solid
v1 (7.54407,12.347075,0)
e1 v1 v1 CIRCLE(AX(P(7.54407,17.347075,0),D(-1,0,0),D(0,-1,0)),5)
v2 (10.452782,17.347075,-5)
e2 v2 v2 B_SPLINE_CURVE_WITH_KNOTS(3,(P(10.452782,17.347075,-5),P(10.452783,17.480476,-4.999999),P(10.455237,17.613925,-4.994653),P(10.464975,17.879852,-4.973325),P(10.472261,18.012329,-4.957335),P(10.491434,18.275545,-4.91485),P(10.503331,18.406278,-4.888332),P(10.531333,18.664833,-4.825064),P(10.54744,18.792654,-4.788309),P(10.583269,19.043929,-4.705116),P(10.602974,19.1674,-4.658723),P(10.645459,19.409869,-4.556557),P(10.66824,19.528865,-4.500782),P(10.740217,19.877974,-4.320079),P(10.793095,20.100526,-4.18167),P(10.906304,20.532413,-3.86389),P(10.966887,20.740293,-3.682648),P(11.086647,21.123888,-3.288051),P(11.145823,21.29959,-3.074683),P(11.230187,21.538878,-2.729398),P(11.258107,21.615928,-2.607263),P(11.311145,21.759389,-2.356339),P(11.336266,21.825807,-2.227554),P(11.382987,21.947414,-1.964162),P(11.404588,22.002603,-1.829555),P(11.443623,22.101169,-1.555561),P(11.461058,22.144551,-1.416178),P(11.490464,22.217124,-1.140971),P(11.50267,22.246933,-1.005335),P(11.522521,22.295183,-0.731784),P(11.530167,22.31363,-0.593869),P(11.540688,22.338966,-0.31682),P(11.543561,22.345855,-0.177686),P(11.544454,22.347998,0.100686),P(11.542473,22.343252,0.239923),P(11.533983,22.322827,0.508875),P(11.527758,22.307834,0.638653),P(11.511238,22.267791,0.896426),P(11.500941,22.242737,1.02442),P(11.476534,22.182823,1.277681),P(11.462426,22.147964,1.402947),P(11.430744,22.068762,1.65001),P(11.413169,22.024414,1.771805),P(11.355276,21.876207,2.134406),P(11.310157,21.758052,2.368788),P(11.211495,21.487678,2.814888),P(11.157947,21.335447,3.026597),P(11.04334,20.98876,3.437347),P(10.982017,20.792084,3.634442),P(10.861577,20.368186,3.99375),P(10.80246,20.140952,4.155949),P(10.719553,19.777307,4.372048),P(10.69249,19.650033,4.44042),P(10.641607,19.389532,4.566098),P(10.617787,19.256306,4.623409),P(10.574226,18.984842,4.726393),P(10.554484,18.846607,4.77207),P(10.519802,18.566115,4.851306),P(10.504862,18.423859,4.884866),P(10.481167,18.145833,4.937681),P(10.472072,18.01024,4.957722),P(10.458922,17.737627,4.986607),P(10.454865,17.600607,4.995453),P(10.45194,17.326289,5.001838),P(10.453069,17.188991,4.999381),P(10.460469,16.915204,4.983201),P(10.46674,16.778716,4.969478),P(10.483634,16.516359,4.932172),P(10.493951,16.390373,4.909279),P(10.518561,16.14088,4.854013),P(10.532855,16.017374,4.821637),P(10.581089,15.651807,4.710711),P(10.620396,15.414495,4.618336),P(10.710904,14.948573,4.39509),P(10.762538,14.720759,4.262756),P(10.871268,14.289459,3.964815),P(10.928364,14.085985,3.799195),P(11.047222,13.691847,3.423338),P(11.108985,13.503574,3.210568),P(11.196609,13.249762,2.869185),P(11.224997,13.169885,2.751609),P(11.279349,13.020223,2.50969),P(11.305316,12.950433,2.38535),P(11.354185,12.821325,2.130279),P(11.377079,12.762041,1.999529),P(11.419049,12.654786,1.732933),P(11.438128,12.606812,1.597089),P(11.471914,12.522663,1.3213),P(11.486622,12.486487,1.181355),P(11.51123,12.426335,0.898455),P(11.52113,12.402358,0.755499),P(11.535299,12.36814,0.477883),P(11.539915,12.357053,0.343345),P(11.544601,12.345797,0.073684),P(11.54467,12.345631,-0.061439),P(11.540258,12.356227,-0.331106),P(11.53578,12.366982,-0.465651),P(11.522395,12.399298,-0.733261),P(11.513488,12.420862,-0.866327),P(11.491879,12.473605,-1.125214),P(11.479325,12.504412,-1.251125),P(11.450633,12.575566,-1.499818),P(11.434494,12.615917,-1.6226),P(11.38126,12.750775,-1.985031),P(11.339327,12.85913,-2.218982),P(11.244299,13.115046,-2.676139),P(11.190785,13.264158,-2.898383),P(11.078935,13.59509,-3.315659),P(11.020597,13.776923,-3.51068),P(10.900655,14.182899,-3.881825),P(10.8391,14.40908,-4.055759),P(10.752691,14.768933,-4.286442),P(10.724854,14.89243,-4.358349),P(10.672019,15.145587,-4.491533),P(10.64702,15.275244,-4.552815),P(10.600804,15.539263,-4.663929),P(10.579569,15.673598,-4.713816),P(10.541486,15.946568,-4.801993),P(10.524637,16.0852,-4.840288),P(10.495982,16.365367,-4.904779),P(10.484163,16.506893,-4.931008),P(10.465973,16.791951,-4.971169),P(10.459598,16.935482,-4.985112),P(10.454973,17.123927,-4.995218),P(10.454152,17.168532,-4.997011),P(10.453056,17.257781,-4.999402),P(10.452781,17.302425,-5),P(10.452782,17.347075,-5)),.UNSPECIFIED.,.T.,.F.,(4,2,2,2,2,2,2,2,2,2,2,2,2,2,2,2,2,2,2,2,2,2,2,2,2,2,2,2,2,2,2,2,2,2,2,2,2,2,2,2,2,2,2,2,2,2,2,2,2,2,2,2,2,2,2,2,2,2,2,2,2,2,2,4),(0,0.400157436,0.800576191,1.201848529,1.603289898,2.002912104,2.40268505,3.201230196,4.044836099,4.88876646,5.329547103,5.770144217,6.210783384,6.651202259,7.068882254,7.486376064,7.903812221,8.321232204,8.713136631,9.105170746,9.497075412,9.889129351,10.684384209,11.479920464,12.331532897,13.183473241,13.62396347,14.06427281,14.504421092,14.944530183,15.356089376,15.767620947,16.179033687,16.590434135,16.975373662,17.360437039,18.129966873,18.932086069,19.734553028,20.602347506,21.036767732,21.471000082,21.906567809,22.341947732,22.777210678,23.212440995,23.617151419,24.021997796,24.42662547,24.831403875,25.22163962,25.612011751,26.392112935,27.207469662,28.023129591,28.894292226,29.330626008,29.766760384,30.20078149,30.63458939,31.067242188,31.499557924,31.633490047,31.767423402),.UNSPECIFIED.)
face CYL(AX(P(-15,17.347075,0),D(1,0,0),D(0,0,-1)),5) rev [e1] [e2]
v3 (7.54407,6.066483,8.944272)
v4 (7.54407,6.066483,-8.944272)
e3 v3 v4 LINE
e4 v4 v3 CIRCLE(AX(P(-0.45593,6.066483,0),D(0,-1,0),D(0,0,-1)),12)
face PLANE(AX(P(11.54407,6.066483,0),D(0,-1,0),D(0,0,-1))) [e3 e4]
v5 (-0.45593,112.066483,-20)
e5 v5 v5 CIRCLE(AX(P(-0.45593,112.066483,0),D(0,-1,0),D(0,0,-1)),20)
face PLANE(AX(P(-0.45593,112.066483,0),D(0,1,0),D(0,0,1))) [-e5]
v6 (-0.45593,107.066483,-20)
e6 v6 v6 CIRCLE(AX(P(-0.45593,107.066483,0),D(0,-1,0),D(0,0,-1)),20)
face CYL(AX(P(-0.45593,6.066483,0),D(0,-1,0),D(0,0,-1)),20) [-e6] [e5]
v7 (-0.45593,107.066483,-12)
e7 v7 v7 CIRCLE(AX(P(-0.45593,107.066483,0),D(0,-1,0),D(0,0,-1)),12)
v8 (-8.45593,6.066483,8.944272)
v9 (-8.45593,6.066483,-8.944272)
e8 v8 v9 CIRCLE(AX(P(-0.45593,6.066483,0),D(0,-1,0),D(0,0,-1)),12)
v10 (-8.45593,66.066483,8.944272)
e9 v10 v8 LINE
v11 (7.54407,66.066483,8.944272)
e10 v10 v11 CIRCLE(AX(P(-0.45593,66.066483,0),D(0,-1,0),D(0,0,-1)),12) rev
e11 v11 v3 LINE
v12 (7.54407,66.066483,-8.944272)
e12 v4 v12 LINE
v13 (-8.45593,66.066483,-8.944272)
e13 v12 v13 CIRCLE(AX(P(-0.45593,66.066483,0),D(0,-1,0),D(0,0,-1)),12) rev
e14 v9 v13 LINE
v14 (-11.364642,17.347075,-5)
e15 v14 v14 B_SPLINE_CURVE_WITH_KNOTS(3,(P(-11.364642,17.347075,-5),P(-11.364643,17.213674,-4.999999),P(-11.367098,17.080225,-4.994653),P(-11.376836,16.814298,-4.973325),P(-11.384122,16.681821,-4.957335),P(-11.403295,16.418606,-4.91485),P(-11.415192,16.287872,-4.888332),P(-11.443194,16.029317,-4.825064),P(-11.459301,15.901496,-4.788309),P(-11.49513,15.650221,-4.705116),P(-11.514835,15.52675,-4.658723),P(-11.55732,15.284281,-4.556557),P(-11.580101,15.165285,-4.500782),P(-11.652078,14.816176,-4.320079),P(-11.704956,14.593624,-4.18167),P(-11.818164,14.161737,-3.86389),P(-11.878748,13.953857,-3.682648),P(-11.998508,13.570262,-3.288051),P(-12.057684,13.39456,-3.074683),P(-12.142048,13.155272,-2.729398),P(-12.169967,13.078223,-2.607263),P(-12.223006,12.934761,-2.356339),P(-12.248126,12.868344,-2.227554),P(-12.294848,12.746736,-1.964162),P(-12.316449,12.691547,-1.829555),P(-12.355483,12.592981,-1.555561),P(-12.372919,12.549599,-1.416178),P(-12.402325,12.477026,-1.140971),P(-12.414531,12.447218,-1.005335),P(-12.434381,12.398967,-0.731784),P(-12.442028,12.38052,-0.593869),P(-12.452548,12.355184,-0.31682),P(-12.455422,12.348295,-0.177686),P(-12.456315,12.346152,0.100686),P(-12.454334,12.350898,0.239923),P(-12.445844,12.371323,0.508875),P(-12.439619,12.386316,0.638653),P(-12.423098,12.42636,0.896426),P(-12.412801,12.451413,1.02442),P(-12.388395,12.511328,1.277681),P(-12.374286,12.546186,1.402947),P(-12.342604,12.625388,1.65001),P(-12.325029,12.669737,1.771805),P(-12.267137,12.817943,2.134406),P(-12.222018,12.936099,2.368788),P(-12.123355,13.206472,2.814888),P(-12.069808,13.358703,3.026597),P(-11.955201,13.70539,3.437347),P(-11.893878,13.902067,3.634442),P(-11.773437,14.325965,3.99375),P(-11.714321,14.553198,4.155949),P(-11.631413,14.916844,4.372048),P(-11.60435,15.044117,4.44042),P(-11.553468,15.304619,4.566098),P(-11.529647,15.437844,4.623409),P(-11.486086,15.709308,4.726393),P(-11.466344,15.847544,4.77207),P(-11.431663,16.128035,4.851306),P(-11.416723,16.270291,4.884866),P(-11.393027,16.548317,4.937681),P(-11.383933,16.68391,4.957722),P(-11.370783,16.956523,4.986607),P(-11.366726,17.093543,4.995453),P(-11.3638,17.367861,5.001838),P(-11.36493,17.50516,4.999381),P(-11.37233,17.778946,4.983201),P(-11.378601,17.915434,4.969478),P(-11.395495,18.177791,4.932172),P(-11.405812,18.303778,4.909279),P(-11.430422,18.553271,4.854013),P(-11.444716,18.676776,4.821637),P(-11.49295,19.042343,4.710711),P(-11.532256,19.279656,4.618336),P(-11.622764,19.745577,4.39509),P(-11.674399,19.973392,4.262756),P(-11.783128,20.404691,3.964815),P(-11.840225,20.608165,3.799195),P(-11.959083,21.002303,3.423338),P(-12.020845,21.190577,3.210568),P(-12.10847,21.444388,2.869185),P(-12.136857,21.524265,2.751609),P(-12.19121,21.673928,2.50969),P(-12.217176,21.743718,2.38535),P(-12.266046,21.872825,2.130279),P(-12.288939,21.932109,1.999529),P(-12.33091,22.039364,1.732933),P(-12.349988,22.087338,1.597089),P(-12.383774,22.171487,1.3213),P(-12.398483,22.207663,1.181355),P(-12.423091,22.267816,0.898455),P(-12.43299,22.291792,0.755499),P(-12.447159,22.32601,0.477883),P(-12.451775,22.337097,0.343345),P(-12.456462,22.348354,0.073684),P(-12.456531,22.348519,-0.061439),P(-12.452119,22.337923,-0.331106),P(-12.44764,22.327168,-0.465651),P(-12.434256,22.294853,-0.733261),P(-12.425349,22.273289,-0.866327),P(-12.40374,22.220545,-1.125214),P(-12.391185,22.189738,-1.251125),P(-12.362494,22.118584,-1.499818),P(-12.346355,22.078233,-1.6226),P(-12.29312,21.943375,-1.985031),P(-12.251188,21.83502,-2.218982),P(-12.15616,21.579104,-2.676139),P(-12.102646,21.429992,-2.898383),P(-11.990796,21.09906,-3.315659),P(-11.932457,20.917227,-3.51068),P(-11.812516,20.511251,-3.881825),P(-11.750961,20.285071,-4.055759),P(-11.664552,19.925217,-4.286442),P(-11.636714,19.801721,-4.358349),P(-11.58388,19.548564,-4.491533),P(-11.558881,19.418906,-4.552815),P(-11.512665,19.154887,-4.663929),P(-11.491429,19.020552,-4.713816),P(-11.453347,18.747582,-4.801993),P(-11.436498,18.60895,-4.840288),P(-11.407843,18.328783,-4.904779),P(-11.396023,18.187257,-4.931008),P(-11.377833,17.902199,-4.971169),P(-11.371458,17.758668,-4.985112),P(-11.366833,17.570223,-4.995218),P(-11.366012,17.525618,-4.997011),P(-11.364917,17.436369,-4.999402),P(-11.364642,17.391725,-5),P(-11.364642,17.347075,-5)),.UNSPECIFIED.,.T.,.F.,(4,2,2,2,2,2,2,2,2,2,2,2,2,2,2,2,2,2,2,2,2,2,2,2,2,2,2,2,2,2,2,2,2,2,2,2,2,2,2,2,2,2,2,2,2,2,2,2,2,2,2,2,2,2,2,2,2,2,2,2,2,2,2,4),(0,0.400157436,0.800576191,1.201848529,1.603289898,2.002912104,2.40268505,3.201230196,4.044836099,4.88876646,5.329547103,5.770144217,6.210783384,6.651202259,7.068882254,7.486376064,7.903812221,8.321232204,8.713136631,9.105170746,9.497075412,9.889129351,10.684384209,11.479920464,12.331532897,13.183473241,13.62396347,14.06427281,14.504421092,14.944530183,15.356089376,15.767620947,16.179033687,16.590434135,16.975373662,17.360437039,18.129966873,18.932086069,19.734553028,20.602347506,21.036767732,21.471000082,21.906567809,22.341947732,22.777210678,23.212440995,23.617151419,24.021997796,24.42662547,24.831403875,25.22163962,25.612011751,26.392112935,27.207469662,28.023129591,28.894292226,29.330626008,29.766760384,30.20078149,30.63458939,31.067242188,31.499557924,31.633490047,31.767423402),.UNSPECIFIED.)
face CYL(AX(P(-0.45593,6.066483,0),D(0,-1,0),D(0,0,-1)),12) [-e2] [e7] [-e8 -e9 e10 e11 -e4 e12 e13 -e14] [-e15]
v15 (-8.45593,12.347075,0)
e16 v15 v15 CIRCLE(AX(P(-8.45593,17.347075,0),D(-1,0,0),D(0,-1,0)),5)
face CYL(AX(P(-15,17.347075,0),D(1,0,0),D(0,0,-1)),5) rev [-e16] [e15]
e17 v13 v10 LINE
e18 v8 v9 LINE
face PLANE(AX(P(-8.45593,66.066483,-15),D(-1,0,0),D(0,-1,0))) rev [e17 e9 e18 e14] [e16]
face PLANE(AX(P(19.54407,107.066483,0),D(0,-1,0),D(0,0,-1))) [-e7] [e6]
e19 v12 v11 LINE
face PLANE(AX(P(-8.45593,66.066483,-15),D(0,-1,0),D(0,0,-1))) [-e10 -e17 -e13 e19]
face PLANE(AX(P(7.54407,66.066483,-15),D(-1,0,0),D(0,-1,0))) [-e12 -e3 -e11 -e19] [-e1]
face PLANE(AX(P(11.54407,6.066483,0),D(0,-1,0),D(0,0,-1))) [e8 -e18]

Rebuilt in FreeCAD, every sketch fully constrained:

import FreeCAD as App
import Part
import Sketcher
from FreeCAD import Vector

doc = App.newDocument("Part")
body = doc.addObject("PartDesign::Body", "Body")

sketch1 = body.newObject("Sketcher::SketchObject", "Sketch")
sketch1.AttachmentSupport = (doc.getObject("XY_Plane"), [""])
sketch1.MapMode = "FlatFace"
sketch1.addGeometry([
    Part.LineSegment(Vector(20, 112, 0), Vector(0, 112, 0)),
    Part.LineSegment(Vector(0, 112, 0), Vector(0, 6, 0)),
    Part.LineSegment(Vector(0, 6, 0), Vector(12, 6, 0)),
    Part.LineSegment(Vector(12, 6, 0), Vector(12, 107, 0)),
    Part.LineSegment(Vector(12, 107, 0), Vector(20, 107, 0)),
    Part.LineSegment(Vector(20, 107, 0), Vector(20, 112, 0)),
], False)
sketch1.addGeometry(Part.LineSegment(Vector(0, 6, 0), Vector(0, 112, 0)), True)
sketch1.addConstraint([
    Sketcher.Constraint("Coincident", 0, 2, 1, 1),
    Sketcher.Constraint("Coincident", 1, 2, 2, 1),
    Sketcher.Constraint("Coincident", 2, 2, 3, 1),
    Sketcher.Constraint("Coincident", 3, 2, 4, 1),
    Sketcher.Constraint("Coincident", 4, 2, 5, 1),
    Sketcher.Constraint("Coincident", 5, 2, 0, 1),
    Sketcher.Constraint("Horizontal", 0),
    Sketcher.Constraint("Vertical", 1),
    Sketcher.Constraint("Horizontal", 2),
    Sketcher.Constraint("Vertical", 3),
    Sketcher.Constraint("Horizontal", 4),
    Sketcher.Constraint("Vertical", 5),
    Sketcher.Constraint("Vertical", 6),
    Sketcher.Constraint("Coincident", 6, 1, 1, 2),
    Sketcher.Constraint("Horizontal", 5, 2, 6, 2),
    Sketcher.Constraint("DistanceX", 0, 2, 0, 1, 20.0),
    Sketcher.Constraint("DistanceX", 2, 1, 2, 2, 12.0),
    Sketcher.Constraint("DistanceY", 1, 2, 1, 1, 106.0),
    Sketcher.Constraint("DistanceY", 3, 1, 3, 2, 101.0),
    Sketcher.Constraint("DistanceX", 0, 2, -1, 1, 0.45593),
    Sketcher.Constraint("DistanceY", -1, 1, 0, 2, 112.066483),
])
revolution = body.newObject("PartDesign::Revolution", "Revolution")
revolution.Profile = sketch1
revolution.ReferenceAxis = (sketch1, ["Axis0"])
revolution.Angle = 360

sketch2 = body.newObject("Sketcher::SketchObject", "Sketch001")
sketch2.AttachmentSupport = (doc.getObject("XY_Plane"), [""])
sketch2.MapMode = "FlatFace"
sketch2.addGeometry([
    Part.LineSegment(Vector(-8, 66, 0), Vector(-8, -4, 0)),
    Part.LineSegment(Vector(-8, -4, 0), Vector(8, -4, 0)),
    Part.LineSegment(Vector(8, -4, 0), Vector(8, 66, 0)),
    Part.LineSegment(Vector(8, 66, 0), Vector(-8, 66, 0)),
], False)
sketch2.addConstraint([
    Sketcher.Constraint("Coincident", 0, 2, 1, 1),
    Sketcher.Constraint("Coincident", 1, 2, 2, 1),
    Sketcher.Constraint("Coincident", 2, 2, 3, 1),
    Sketcher.Constraint("Coincident", 3, 2, 0, 1),
    Sketcher.Constraint("Vertical", 0),
    Sketcher.Constraint("Horizontal", 1),
    Sketcher.Constraint("Vertical", 2),
    Sketcher.Constraint("Horizontal", 3),
    Sketcher.Constraint("DistanceX", 1, 1, 1, 2, 16.0),
    Sketcher.Constraint("DistanceY", 0, 2, 0, 1, 70.0),
    Sketcher.Constraint("DistanceX", 0, 2, -1, 1, 8.45593),
    Sketcher.Constraint("DistanceY", 0, 2, -1, 1, 3.933517),
])
pocket1 = body.newObject("PartDesign::Pocket", "Pocket")
pocket1.Profile = sketch2
pocket1.Length = 30
pocket1.Midplane = True

sketch3 = body.newObject("Sketcher::SketchObject", "Sketch002")
sketch3.AttachmentSupport = (doc.getObject("YZ_Plane"), [""])
sketch3.MapMode = "FlatFace"
sketch3.addGeometry(Part.Circle(Vector(17, 0, 0), Vector(0, 0, 1), 5), False)
sketch3.addConstraint([
    Sketcher.Constraint("PointOnObject", 0, 3, -1),
    Sketcher.Constraint("Diameter", 0, 10.0),
    Sketcher.Constraint("DistanceX", -1, 1, 0, 3, 17.347075),
])
pocket2 = body.newObject("PartDesign::Pocket", "Pocket001")
pocket2.Profile = sketch3
pocket2.Length = 30
pocket2.Midplane = True

doc.recompute()
